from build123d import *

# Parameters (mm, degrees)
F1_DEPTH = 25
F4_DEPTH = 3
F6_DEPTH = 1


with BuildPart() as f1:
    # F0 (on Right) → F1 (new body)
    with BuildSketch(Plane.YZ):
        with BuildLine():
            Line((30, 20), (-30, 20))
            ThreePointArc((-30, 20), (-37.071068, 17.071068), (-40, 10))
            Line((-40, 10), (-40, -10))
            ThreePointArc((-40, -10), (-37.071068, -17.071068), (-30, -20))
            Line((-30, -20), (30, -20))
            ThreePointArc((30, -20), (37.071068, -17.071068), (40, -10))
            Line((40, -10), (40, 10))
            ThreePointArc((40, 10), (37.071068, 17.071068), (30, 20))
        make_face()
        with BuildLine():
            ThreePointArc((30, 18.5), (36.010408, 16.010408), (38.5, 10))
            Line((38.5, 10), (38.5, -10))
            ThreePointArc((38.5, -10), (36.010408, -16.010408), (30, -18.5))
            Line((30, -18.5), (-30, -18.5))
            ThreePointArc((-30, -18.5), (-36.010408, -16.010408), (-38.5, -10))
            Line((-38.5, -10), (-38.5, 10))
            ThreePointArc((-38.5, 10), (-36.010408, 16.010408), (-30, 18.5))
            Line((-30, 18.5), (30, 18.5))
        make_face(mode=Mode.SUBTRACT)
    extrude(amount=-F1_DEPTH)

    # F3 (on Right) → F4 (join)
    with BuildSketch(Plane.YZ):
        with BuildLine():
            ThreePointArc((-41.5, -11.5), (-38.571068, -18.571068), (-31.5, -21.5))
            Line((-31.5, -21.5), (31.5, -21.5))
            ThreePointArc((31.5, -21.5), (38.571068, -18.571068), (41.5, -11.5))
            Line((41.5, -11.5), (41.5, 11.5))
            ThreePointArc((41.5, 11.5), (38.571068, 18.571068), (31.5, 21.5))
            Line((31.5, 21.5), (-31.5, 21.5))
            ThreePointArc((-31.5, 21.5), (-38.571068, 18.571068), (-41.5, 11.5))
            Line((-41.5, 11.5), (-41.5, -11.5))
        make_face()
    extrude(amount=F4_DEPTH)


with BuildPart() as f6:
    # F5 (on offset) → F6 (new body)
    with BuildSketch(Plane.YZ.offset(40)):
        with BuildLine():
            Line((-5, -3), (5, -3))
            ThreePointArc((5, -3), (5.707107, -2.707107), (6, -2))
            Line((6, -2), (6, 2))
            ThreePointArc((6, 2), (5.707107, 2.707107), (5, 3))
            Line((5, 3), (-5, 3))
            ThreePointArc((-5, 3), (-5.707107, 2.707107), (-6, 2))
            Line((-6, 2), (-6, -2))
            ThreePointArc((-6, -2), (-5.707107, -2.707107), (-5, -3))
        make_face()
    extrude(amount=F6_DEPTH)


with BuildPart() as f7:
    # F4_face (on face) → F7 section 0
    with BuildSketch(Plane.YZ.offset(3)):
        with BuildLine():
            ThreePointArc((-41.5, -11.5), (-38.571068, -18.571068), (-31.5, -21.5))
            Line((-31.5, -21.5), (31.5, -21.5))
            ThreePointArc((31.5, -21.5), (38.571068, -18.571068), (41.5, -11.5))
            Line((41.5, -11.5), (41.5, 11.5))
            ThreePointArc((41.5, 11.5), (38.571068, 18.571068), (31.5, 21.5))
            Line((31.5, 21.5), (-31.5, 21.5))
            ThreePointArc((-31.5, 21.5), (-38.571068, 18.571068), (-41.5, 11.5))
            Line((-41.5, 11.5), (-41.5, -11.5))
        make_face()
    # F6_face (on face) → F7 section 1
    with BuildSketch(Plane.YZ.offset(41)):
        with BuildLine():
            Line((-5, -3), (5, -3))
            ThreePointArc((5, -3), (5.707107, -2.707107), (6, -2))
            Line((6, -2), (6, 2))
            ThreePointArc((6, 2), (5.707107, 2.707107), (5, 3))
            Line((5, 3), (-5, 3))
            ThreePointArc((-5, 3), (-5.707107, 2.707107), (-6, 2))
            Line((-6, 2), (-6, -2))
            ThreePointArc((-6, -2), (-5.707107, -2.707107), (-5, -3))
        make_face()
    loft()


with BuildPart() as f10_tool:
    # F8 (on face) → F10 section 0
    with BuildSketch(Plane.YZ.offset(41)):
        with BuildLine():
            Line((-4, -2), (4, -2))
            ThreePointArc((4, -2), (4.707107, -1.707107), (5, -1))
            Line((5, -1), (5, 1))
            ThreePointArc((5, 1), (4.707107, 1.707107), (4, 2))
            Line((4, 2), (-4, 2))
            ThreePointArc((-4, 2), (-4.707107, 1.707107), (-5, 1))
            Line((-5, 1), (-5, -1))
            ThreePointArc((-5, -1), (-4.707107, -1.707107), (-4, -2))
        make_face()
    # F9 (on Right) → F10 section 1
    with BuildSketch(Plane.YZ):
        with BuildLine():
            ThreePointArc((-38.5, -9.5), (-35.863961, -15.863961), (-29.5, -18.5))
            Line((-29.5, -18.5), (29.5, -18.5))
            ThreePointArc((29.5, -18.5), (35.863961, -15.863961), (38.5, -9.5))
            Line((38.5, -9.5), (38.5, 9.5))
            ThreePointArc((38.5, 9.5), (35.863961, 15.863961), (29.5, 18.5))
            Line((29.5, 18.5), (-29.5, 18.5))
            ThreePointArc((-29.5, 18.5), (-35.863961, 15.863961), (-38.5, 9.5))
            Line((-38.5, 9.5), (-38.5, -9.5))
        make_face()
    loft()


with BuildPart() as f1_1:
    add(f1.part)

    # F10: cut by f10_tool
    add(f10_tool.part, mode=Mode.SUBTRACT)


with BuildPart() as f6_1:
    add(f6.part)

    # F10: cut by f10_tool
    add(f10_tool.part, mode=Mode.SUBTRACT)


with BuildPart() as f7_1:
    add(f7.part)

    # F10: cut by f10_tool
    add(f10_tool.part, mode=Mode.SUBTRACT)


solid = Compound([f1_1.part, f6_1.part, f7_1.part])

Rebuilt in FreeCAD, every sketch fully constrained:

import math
import FreeCAD as App
import Part
import Sketcher
Q = App.Units.Quantity

doc = App.newDocument("Part")
body = doc.addObject("PartDesign::Body", "Body")

sketch1 = body.newObject("Sketcher::SketchObject", "Sketch")
sketch1.AttachmentSupport = (doc.getObject("YZ_Plane"), [""])
sketch1.MapMode = "FlatFace"
sketch1.addGeometry(Part.LineSegment(App.Vector(30, 20, 0), App.Vector(-30, 20, 0)), False)
sketch1.addGeometry(Part.ArcOfCircle(Part.Circle(App.Vector(-30.000001, 10.000001, 0), App.Vector(0, 0, 1), 9.999999), math.radians(89.999996), math.radians(180.000004)), False)
sketch1.addGeometry(Part.LineSegment(App.Vector(-40, 10, 0), App.Vector(-40, -10, 0)), False)
sketch1.addGeometry(Part.ArcOfCircle(Part.Circle(App.Vector(-30.000001, -10.000001, 0), App.Vector(0, 0, 1), 9.999999), math.radians(179.999996), math.radians(270.000004)), False)
sketch1.addGeometry(Part.LineSegment(App.Vector(-30, -20, 0), App.Vector(30, -20, 0)), False)
sketch1.addGeometry(Part.ArcOfCircle(Part.Circle(App.Vector(30.000001, -10.000001, 0), App.Vector(0, 0, 1), 9.999999), math.radians(-90.000004), math.radians(0.000004)), False)
sketch1.addGeometry(Part.LineSegment(App.Vector(40, -10, 0), App.Vector(40, 10, 0)), False)
sketch1.addGeometry(Part.ArcOfCircle(Part.Circle(App.Vector(30.000001, 10.000001, 0), App.Vector(0, 0, 1), 9.999999), math.radians(-0.000004), math.radians(90.000004)), False)
sketch1.addGeometry(Part.LineSegment(App.Vector(-30, 18.5, 0), App.Vector(30, 18.5, 0)), False)
sketch1.addGeometry(Part.ArcOfCircle(Part.Circle(App.Vector(30.000001, 10.000001, 0), App.Vector(0, 0, 1), 8.499999), math.radians(-0.000008), math.radians(90.000008)), False)
sketch1.addGeometry(Part.LineSegment(App.Vector(38.5, 10, 0), App.Vector(38.5, -10, 0)), False)
sketch1.addGeometry(Part.ArcOfCircle(Part.Circle(App.Vector(30.000001, -10.000001, 0), App.Vector(0, 0, 1), 8.499999), math.radians(-90.000008), math.radians(0.000008)), False)
sketch1.addGeometry(Part.LineSegment(App.Vector(30, -18.5, 0), App.Vector(-30, -18.5, 0)), False)
sketch1.addGeometry(Part.ArcOfCircle(Part.Circle(App.Vector(-30.000001, -10.000001, 0), App.Vector(0, 0, 1), 8.499999), math.radians(179.999992), math.radians(270.000008)), False)
sketch1.addGeometry(Part.LineSegment(App.Vector(-38.5, -10, 0), App.Vector(-38.5, 10, 0)), False)
sketch1.addGeometry(Part.ArcOfCircle(Part.Circle(App.Vector(-30.000001, 10.000001, 0), App.Vector(0, 0, 1), 8.499999), math.radians(89.999992), math.radians(180.000008)), False)
sketch1.addConstraint(Sketcher.Constraint("Tangent", 0, 2, 1, 1))
sketch1.addConstraint(Sketcher.Constraint("Tangent", 1, 2, 2, 1))
sketch1.addConstraint(Sketcher.Constraint("Tangent", 2, 2, 3, 1))
sketch1.addConstraint(Sketcher.Constraint("Tangent", 3, 2, 4, 1))
sketch1.addConstraint(Sketcher.Constraint("Tangent", 4, 2, 5, 1))
sketch1.addConstraint(Sketcher.Constraint("Tangent", 5, 2, 6, 1))
sketch1.addConstraint(Sketcher.Constraint("Tangent", 6, 2, 7, 1))
sketch1.addConstraint(Sketcher.Constraint("Tangent", 7, 2, 0, 1))
sketch1.addConstraint(Sketcher.Constraint("Tangent", 8, 2, 9, 2))
sketch1.addConstraint(Sketcher.Constraint("Tangent", 9, 1, 10, 1))
sketch1.addConstraint(Sketcher.Constraint("Tangent", 10, 2, 11, 2))
sketch1.addConstraint(Sketcher.Constraint("Tangent", 11, 1, 12, 1))
sketch1.addConstraint(Sketcher.Constraint("Tangent", 12, 2, 13, 2))
sketch1.addConstraint(Sketcher.Constraint("Tangent", 13, 1, 14, 1))
sketch1.addConstraint(Sketcher.Constraint("Tangent", 14, 2, 15, 2))
sketch1.addConstraint(Sketcher.Constraint("Tangent", 15, 1, 8, 1))
sketch1.addConstraint(Sketcher.Constraint("Horizontal", 0))
sketch1.addConstraint(Sketcher.Constraint("Vertical", 2))
sketch1.addConstraint(Sketcher.Constraint("Horizontal", 4))
sketch1.addConstraint(Sketcher.Constraint("Vertical", 6))
sketch1.addConstraint(Sketcher.Constraint("Horizontal", 8))
sketch1.addConstraint(Sketcher.Constraint("Vertical", 10))
sketch1.addConstraint(Sketcher.Constraint("Horizontal", 12))
sketch1.addConstraint(Sketcher.Constraint("Vertical", 14))
sketch1.addConstraint(Sketcher.Constraint("Coincident", 9, 3, 7, 3))
sketch1.addConstraint(Sketcher.Constraint("Coincident", 11, 3, 5, 3))
sketch1.addConstraint(Sketcher.Constraint("Coincident", 13, 3, 3, 3))
sketch1.addConstraint(Sketcher.Constraint("Equal", 1, 3))
sketch1.addConstraint(Sketcher.Constraint("Equal", 3, 5))
sketch1.addConstraint(Sketcher.Constraint("Equal", 5, 7))
sketch1.addConstraint(Sketcher.Constraint("Equal", 13, 15))
sketch1.addConstraint(Sketcher.Constraint("Symmetric", 1, 3, 5, 3, -1, 1))
sketch1.addConstraint(Sketcher.Constraint("Radius", 1, Q("9.999999 mm")))
sketch1.addConstraint(Sketcher.Constraint("Radius", 9, Q("8.499999 mm")))
sketch1.addConstraint(Sketcher.Constraint("DistanceX", 0, 2, 0, 1, Q("60 mm")))
sketch1.addConstraint(Sketcher.Constraint("DistanceY", 2, 2, 2, 1, Q("20 mm")))
pad1 = body.newObject("PartDesign::Pad", "Pad")
pad1.Profile = sketch1
pad1.Length = 25
pad1.Reversed = True

sketch2 = body.newObject("Sketcher::SketchObject", "Sketch001")
sketch2.AttachmentSupport = (doc.getObject("YZ_Plane"), [""])
sketch2.MapMode = "FlatFace"
sketch2.addGeometry(Part.ArcOfCircle(Part.Circle(App.Vector(-31.500001, -11.500001, 0), App.Vector(0, 0, 1), 9.999999), math.radians(179.999996), math.radians(270.000004)), False)
sketch2.addGeometry(Part.LineSegment(App.Vector(-31.5, -21.5, 0), App.Vector(31.5, -21.5, 0)), False)
sketch2.addGeometry(Part.ArcOfCircle(Part.Circle(App.Vector(31.500001, -11.500001, 0), App.Vector(0, 0, 1), 9.999999), math.radians(-90.000004), math.radians(0.000004)), False)
sketch2.addGeometry(Part.LineSegment(App.Vector(41.5, -11.5, 0), App.Vector(41.5, 11.5, 0)), False)
sketch2.addGeometry(Part.ArcOfCircle(Part.Circle(App.Vector(31.500001, 11.500001, 0), App.Vector(0, 0, 1), 9.999999), math.radians(-0.000004), math.radians(90.000004)), False)
sketch2.addGeometry(Part.LineSegment(App.Vector(31.5, 21.5, 0), App.Vector(-31.5, 21.5, 0)), False)
sketch2.addGeometry(Part.ArcOfCircle(Part.Circle(App.Vector(-31.500001, 11.500001, 0), App.Vector(0, 0, 1), 9.999999), math.radians(89.999996), math.radians(180.000004)), False)
sketch2.addGeometry(Part.LineSegment(App.Vector(-41.5, 11.5, 0), App.Vector(-41.5, -11.5, 0)), False)
sketch2.addConstraint(Sketcher.Constraint("Tangent", 0, 2, 1, 1))
sketch2.addConstraint(Sketcher.Constraint("Tangent", 1, 2, 2, 1))
sketch2.addConstraint(Sketcher.Constraint("Tangent", 2, 2, 3, 1))
sketch2.addConstraint(Sketcher.Constraint("Tangent", 3, 2, 4, 1))
sketch2.addConstraint(Sketcher.Constraint("Tangent", 4, 2, 5, 1))
sketch2.addConstraint(Sketcher.Constraint("Tangent", 5, 2, 6, 1))
sketch2.addConstraint(Sketcher.Constraint("Tangent", 6, 2, 7, 1))
sketch2.addConstraint(Sketcher.Constraint("Tangent", 7, 2, 0, 1))
sketch2.addConstraint(Sketcher.Constraint("Horizontal", 1))
sketch2.addConstraint(Sketcher.Constraint("Vertical", 3))
sketch2.addConstraint(Sketcher.Constraint("Horizontal", 5))
sketch2.addConstraint(Sketcher.Constraint("Vertical", 7))
sketch2.addConstraint(Sketcher.Constraint("Equal", 0, 2))
sketch2.addConstraint(Sketcher.Constraint("Equal", 2, 4))
sketch2.addConstraint(Sketcher.Constraint("Equal", 4, 6))
sketch2.addConstraint(Sketcher.Constraint("Symmetric", 0, 3, 4, 3, -1, 1))
sketch2.addConstraint(Sketcher.Constraint("Radius", 0, Q("9.999999 mm")))
sketch2.addConstraint(Sketcher.Constraint("DistanceX", 1, 1, 1, 2, Q("63 mm")))
sketch2.addConstraint(Sketcher.Constraint("DistanceY", 3, 1, 3, 2, Q("23 mm")))
pad2 = body.newObject("PartDesign::Pad", "Pad001")
pad2.Profile = sketch2
pad2.Length = 3
body2 = doc.addObject("PartDesign::Body", "Body001")

sketch3 = body2.newObject("Sketcher::SketchObject", "Sketch002")
sketch3.AttachmentSupport = (doc.getObject("YZ_Plane001"), [""])
sketch3.MapMode = "FlatFace"
sketch3.AttachmentOffset = App.Placement(App.Vector(0, 0, 40), App.Rotation())
sketch3.addGeometry(Part.LineSegment(App.Vector(-5, -3, 0), App.Vector(5, -3, 0)), False)
sketch3.addGeometry(Part.ArcOfCircle(Part.Circle(App.Vector(5.000001, -2.000001, 0), App.Vector(0, 0, 1), 0.999999), math.radians(-90.000043), math.radians(0.000043)), False)
sketch3.addGeometry(Part.LineSegment(App.Vector(6, -2, 0), App.Vector(6, 2, 0)), False)
sketch3.addGeometry(Part.ArcOfCircle(Part.Circle(App.Vector(5.000001, 2.000001, 0), App.Vector(0, 0, 1), 0.999999), math.radians(-0.000043), math.radians(90.000043)), False)
sketch3.addGeometry(Part.LineSegment(App.Vector(5, 3, 0), App.Vector(-5, 3, 0)), False)
sketch3.addGeometry(Part.ArcOfCircle(Part.Circle(App.Vector(-5.000001, 2.000001, 0), App.Vector(0, 0, 1), 0.999999), math.radians(89.999957), math.radians(180.000043)), False)
sketch3.addGeometry(Part.LineSegment(App.Vector(-6, 2, 0), App.Vector(-6, -2, 0)), False)
sketch3.addGeometry(Part.ArcOfCircle(Part.Circle(App.Vector(-5.000001, -2.000001, 0), App.Vector(0, 0, 1), 0.999999), math.radians(179.999957), math.radians(270.000043)), False)
sketch3.addConstraint(Sketcher.Constraint("Tangent", 0, 2, 1, 1))
sketch3.addConstraint(Sketcher.Constraint("Tangent", 1, 2, 2, 1))
sketch3.addConstraint(Sketcher.Constraint("Tangent", 2, 2, 3, 1))
sketch3.addConstraint(Sketcher.Constraint("Tangent", 3, 2, 4, 1))
sketch3.addConstraint(Sketcher.Constraint("Tangent", 4, 2, 5, 1))
sketch3.addConstraint(Sketcher.Constraint("Tangent", 5, 2, 6, 1))
sketch3.addConstraint(Sketcher.Constraint("Tangent", 6, 2, 7, 1))
sketch3.addConstraint(Sketcher.Constraint("Tangent", 7, 2, 0, 1))
sketch3.addConstraint(Sketcher.Constraint("Horizontal", 0))
sketch3.addConstraint(Sketcher.Constraint("Vertical", 2))
sketch3.addConstraint(Sketcher.Constraint("Horizontal", 4))
sketch3.addConstraint(Sketcher.Constraint("Vertical", 6))
sketch3.addConstraint(Sketcher.Constraint("Equal", 1, 3))
sketch3.addConstraint(Sketcher.Constraint("Equal", 3, 5))
sketch3.addConstraint(Sketcher.Constraint("Equal", 5, 7))
sketch3.addConstraint(Sketcher.Constraint("Symmetric", 1, 3, 5, 3, -1, 1))
sketch3.addConstraint(Sketcher.Constraint("Radius", 1, Q("0.999999 mm")))
sketch3.addConstraint(Sketcher.Constraint("DistanceX", 0, 1, 0, 2, Q("10 mm")))
sketch3.addConstraint(Sketcher.Constraint("DistanceY", 2, 1, 2, 2, Q("4 mm")))
pad3 = body2.newObject("PartDesign::Pad", "Pad002")
pad3.Profile = sketch3
pad3.Length = 1
body3 = doc.addObject("PartDesign::Body", "Body002")

sketch4 = body3.newObject("Sketcher::SketchObject", "Sketch003")
sketch4.AttachmentSupport = (doc.getObject("YZ_Plane002"), [""])
sketch4.MapMode = "FlatFace"
sketch4.AttachmentOffset = App.Placement(App.Vector(0, 0, 3), App.Rotation())
sketch4.addGeometry(Part.ArcOfCircle(Part.Circle(App.Vector(-31.500001, -11.500001, 0), App.Vector(0, 0, 1), 9.999999), math.radians(179.999996), math.radians(270.000004)), False)
sketch4.addGeometry(Part.LineSegment(App.Vector(-31.5, -21.5, 0), App.Vector(31.5, -21.5, 0)), False)
sketch4.addGeometry(Part.ArcOfCircle(Part.Circle(App.Vector(31.500001, -11.500001, 0), App.Vector(0, 0, 1), 9.999999), math.radians(-90.000004), math.radians(0.000004)), False)
sketch4.addGeometry(Part.LineSegment(App.Vector(41.5, -11.5, 0), App.Vector(41.5, 11.5, 0)), False)
sketch4.addGeometry(Part.ArcOfCircle(Part.Circle(App.Vector(31.500001, 11.500001, 0), App.Vector(0, 0, 1), 9.999999), math.radians(-0.000004), math.radians(90.000004)), False)
sketch4.addGeometry(Part.LineSegment(App.Vector(31.5, 21.5, 0), App.Vector(-31.5, 21.5, 0)), False)
sketch4.addGeometry(Part.ArcOfCircle(Part.Circle(App.Vector(-31.500001, 11.500001, 0), App.Vector(0, 0, 1), 9.999999), math.radians(89.999996), math.radians(180.000004)), False)
sketch4.addGeometry(Part.LineSegment(App.Vector(-41.5, 11.5, 0), App.Vector(-41.5, -11.5, 0)), False)
sketch4.addConstraint(Sketcher.Constraint("Tangent", 0, 2, 1, 1))
sketch4.addConstraint(Sketcher.Constraint("Tangent", 1, 2, 2, 1))
sketch4.addConstraint(Sketcher.Constraint("Tangent", 2, 2, 3, 1))
sketch4.addConstraint(Sketcher.Constraint("Tangent", 3, 2, 4, 1))
sketch4.addConstraint(Sketcher.Constraint("Tangent", 4, 2, 5, 1))
sketch4.addConstraint(Sketcher.Constraint("Tangent", 5, 2, 6, 1))
sketch4.addConstraint(Sketcher.Constraint("Tangent", 6, 2, 7, 1))
sketch4.addConstraint(Sketcher.Constraint("Tangent", 7, 2, 0, 1))
sketch4.addConstraint(Sketcher.Constraint("Horizontal", 1))
sketch4.addConstraint(Sketcher.Constraint("Vertical", 3))
sketch4.addConstraint(Sketcher.Constraint("Horizontal", 5))
sketch4.addConstraint(Sketcher.Constraint("Vertical", 7))
sketch4.addConstraint(Sketcher.Constraint("Equal", 0, 2))
sketch4.addConstraint(Sketcher.Constraint("Equal", 2, 4))
sketch4.addConstraint(Sketcher.Constraint("Equal", 4, 6))
sketch4.addConstraint(Sketcher.Constraint("Symmetric", 0, 3, 4, 3, -1, 1))
sketch4.addConstraint(Sketcher.Constraint("Radius", 0, Q("9.999999 mm")))
sketch4.addConstraint(Sketcher.Constraint("DistanceX", 1, 1, 1, 2, Q("63 mm")))
sketch4.addConstraint(Sketcher.Constraint("DistanceY", 3, 1, 3, 2, Q("23 mm")))

sketch5 = body3.newObject("Sketcher::SketchObject", "Sketch004")
sketch5.AttachmentSupport = (doc.getObject("YZ_Plane002"), [""])
sketch5.MapMode = "FlatFace"
sketch5.AttachmentOffset = App.Placement(App.Vector(0, 0, 41), App.Rotation())
sketch5.addGeometry(Part.LineSegment(App.Vector(-5, -3, 0), App.Vector(5, -3, 0)), False)
sketch5.addGeometry(Part.ArcOfCircle(Part.Circle(App.Vector(5.000001, -2.000001, 0), App.Vector(0, 0, 1), 0.999999), math.radians(-90.000043), math.radians(0.000043)), False)
sketch5.addGeometry(Part.LineSegment(App.Vector(6, -2, 0), App.Vector(6, 2, 0)), False)
sketch5.addGeometry(Part.ArcOfCircle(Part.Circle(App.Vector(5.000001, 2.000001, 0), App.Vector(0, 0, 1), 0.999999), math.radians(-0.000043), math.radians(90.000043)), False)
sketch5.addGeometry(Part.LineSegment(App.Vector(5, 3, 0), App.Vector(-5, 3, 0)), False)
sketch5.addGeometry(Part.ArcOfCircle(Part.Circle(App.Vector(-5.000001, 2.000001, 0), App.Vector(0, 0, 1), 0.999999), math.radians(89.999957), math.radians(180.000043)), False)
sketch5.addGeometry(Part.LineSegment(App.Vector(-6, 2, 0), App.Vector(-6, -2, 0)), False)
sketch5.addGeometry(Part.ArcOfCircle(Part.Circle(App.Vector(-5.000001, -2.000001, 0), App.Vector(0, 0, 1), 0.999999), math.radians(179.999957), math.radians(270.000043)), False)
sketch5.addConstraint(Sketcher.Constraint("Tangent", 0, 2, 1, 1))
sketch5.addConstraint(Sketcher.Constraint("Tangent", 1, 2, 2, 1))
sketch5.addConstraint(Sketcher.Constraint("Tangent", 2, 2, 3, 1))
sketch5.addConstraint(Sketcher.Constraint("Tangent", 3, 2, 4, 1))
sketch5.addConstraint(Sketcher.Constraint("Tangent", 4, 2, 5, 1))
sketch5.addConstraint(Sketcher.Constraint("Tangent", 5, 2, 6, 1))
sketch5.addConstraint(Sketcher.Constraint("Tangent", 6, 2, 7, 1))
sketch5.addConstraint(Sketcher.Constraint("Tangent", 7, 2, 0, 1))
sketch5.addConstraint(Sketcher.Constraint("Horizontal", 0))
sketch5.addConstraint(Sketcher.Constraint("Vertical", 2))
sketch5.addConstraint(Sketcher.Constraint("Horizontal", 4))
sketch5.addConstraint(Sketcher.Constraint("Vertical", 6))
sketch5.addConstraint(Sketcher.Constraint("Equal", 1, 3))
sketch5.addConstraint(Sketcher.Constraint("Equal", 3, 5))
sketch5.addConstraint(Sketcher.Constraint("Equal", 5, 7))
sketch5.addConstraint(Sketcher.Constraint("Symmetric", 1, 3, 5, 3, -1, 1))
sketch5.addConstraint(Sketcher.Constraint("Radius", 1, Q("0.999999 mm")))
sketch5.addConstraint(Sketcher.Constraint("DistanceX", 0, 1, 0, 2, Q("10 mm")))
sketch5.addConstraint(Sketcher.Constraint("DistanceY", 2, 1, 2, 2, Q("4 mm")))

additiveloft = body3.newObject("PartDesign::AdditiveLoft", "AdditiveLoft")
additiveloft.Profile = sketch4
additiveloft.Sections = [sketch5]
body4 = doc.addObject("PartDesign::Body", "Body003")

sketch6 = body4.newObject("Sketcher::SketchObject", "Sketch005")
sketch6.AttachmentSupport = (doc.getObject("YZ_Plane003"), [""])
sketch6.MapMode = "FlatFace"
sketch6.AttachmentOffset = App.Placement(App.Vector(0, 0, 41), App.Rotation())
sketch6.addGeometry(Part.LineSegment(App.Vector(-4, -2, 0), App.Vector(4, -2, 0)), False)
sketch6.addGeometry(Part.ArcOfCircle(Part.Circle(App.Vector(4.000001, -1.000001, 0), App.Vector(0, 0, 1), 0.999999), math.radians(-90.000043), math.radians(0.000043)), False)
sketch6.addGeometry(Part.LineSegment(App.Vector(5, -1, 0), App.Vector(5, 1, 0)), False)
sketch6.addGeometry(Part.ArcOfCircle(Part.Circle(App.Vector(4.000001, 1.000001, 0), App.Vector(0, 0, 1), 0.999999), math.radians(-0.000043), math.radians(90.000043)), False)
sketch6.addGeometry(Part.LineSegment(App.Vector(4, 2, 0), App.Vector(-4, 2, 0)), False)
sketch6.addGeometry(Part.ArcOfCircle(Part.Circle(App.Vector(-4.000001, 1.000001, 0), App.Vector(0, 0, 1), 0.999999), math.radians(89.999957), math.radians(180.000043)), False)
sketch6.addGeometry(Part.LineSegment(App.Vector(-5, 1, 0), App.Vector(-5, -1, 0)), False)
sketch6.addGeometry(Part.ArcOfCircle(Part.Circle(App.Vector(-4.000001, -1.000001, 0), App.Vector(0, 0, 1), 0.999999), math.radians(179.999957), math.radians(270.000043)), False)
sketch6.addConstraint(Sketcher.Constraint("Tangent", 0, 2, 1, 1))
sketch6.addConstraint(Sketcher.Constraint("Tangent", 1, 2, 2, 1))
sketch6.addConstraint(Sketcher.Constraint("Tangent", 2, 2, 3, 1))
sketch6.addConstraint(Sketcher.Constraint("Tangent", 3, 2, 4, 1))
sketch6.addConstraint(Sketcher.Constraint("Tangent", 4, 2, 5, 1))
sketch6.addConstraint(Sketcher.Constraint("Tangent", 5, 2, 6, 1))
sketch6.addConstraint(Sketcher.Constraint("Tangent", 6, 2, 7, 1))
sketch6.addConstraint(Sketcher.Constraint("Tangent", 7, 2, 0, 1))
sketch6.addConstraint(Sketcher.Constraint("Horizontal", 0))
sketch6.addConstraint(Sketcher.Constraint("Vertical", 2))
sketch6.addConstraint(Sketcher.Constraint("Horizontal", 4))
sketch6.addConstraint(Sketcher.Constraint("Vertical", 6))
sketch6.addConstraint(Sketcher.Constraint("Equal", 1, 3))
sketch6.addConstraint(Sketcher.Constraint("Equal", 3, 5))
sketch6.addConstraint(Sketcher.Constraint("Equal", 5, 7))
sketch6.addConstraint(Sketcher.Constraint("Symmetric", 1, 3, 5, 3, -1, 1))
sketch6.addConstraint(Sketcher.Constraint("Radius", 1, Q("0.999999 mm")))
sketch6.addConstraint(Sketcher.Constraint("DistanceX", 0, 1, 0, 2, Q("8 mm")))
sketch6.addConstraint(Sketcher.Constraint("DistanceY", 2, 1, 2, 2, Q("2 mm")))

sketch7 = body4.newObject("Sketcher::SketchObject", "Sketch006")
sketch7.AttachmentSupport = (doc.getObject("YZ_Plane003"), [""])
sketch7.MapMode = "FlatFace"
sketch7.addGeometry(Part.ArcOfCircle(Part.Circle(App.Vector(-29.5, -9.5, 0), App.Vector(0, 0, 1), 9), math.radians(-179.999999), math.radians(-90.000001)), False)
sketch7.addGeometry(Part.LineSegment(App.Vector(-29.5, -18.5, 0), App.Vector(29.5, -18.5, 0)), False)
sketch7.addGeometry(Part.ArcOfCircle(Part.Circle(App.Vector(29.5, -9.5, 0), App.Vector(0, 0, 1), 9), math.radians(-89.999999), math.radians(-0.000001)), False)
sketch7.addGeometry(Part.LineSegment(App.Vector(38.5, -9.5, 0), App.Vector(38.5, 9.5, 0)), False)
sketch7.addGeometry(Part.ArcOfCircle(Part.Circle(App.Vector(29.5, 9.5, 0), App.Vector(0, 0, 1), 9), math.radians(0.000001), math.radians(89.999999)), False)
sketch7.addGeometry(Part.LineSegment(App.Vector(29.5, 18.5, 0), App.Vector(-29.5, 18.5, 0)), False)
sketch7.addGeometry(Part.ArcOfCircle(Part.Circle(App.Vector(-29.5, 9.5, 0), App.Vector(0, 0, 1), 9), math.radians(90.000001), math.radians(179.999999)), False)
sketch7.addGeometry(Part.LineSegment(App.Vector(-38.5, 9.5, 0), App.Vector(-38.5, -9.5, 0)), False)
sketch7.addConstraint(Sketcher.Constraint("Tangent", 0, 2, 1, 1))
sketch7.addConstraint(Sketcher.Constraint("Tangent", 1, 2, 2, 1))
sketch7.addConstraint(Sketcher.Constraint("Tangent", 2, 2, 3, 1))
sketch7.addConstraint(Sketcher.Constraint("Tangent", 3, 2, 4, 1))
sketch7.addConstraint(Sketcher.Constraint("Tangent", 4, 2, 5, 1))
sketch7.addConstraint(Sketcher.Constraint("Tangent", 5, 2, 6, 1))
sketch7.addConstraint(Sketcher.Constraint("Tangent", 6, 2, 7, 1))
sketch7.addConstraint(Sketcher.Constraint("Tangent", 7, 2, 0, 1))
sketch7.addConstraint(Sketcher.Constraint("Horizontal", 1))
sketch7.addConstraint(Sketcher.Constraint("Vertical", 3))
sketch7.addConstraint(Sketcher.Constraint("Horizontal", 5))
sketch7.addConstraint(Sketcher.Constraint("Vertical", 7))
sketch7.addConstraint(Sketcher.Constraint("Equal", 0, 2))
sketch7.addConstraint(Sketcher.Constraint("Equal", 2, 4))
sketch7.addConstraint(Sketcher.Constraint("Equal", 4, 6))
sketch7.addConstraint(Sketcher.Constraint("Symmetric", 0, 3, 4, 3, -1, 1))
sketch7.addConstraint(Sketcher.Constraint("Radius", 0, Q("9 mm")))
sketch7.addConstraint(Sketcher.Constraint("DistanceX", 1, 1, 1, 2, Q("59 mm")))
sketch7.addConstraint(Sketcher.Constraint("DistanceY", 3, 1, 3, 2, Q("19 mm")))

additiveloft2 = body4.newObject("PartDesign::AdditiveLoft", "AdditiveLoft001")
additiveloft2.Profile = sketch6
additiveloft2.Sections = [sketch7]
doc.recompute()

body5 = doc.addObject("PartDesign::Body", "Body004")
body5.BaseFeature = body4
boolean = body.newObject("PartDesign::Boolean", "Boolean")
boolean.Type = "Cut"
boolean.addObjects([body5])
doc.recompute()

body6 = doc.addObject("PartDesign::Body", "Body005")
body6.BaseFeature = body4
boolean2 = body2.newObject("PartDesign::Boolean", "Boolean001")
boolean2.Type = "Cut"
boolean2.addObjects([body6])
doc.recompute()

boolean3 = body3.newObject("PartDesign::Boolean", "Boolean002")
boolean3.Type = "Cut"
boolean3.addObjects([body4])

doc.recompute()
